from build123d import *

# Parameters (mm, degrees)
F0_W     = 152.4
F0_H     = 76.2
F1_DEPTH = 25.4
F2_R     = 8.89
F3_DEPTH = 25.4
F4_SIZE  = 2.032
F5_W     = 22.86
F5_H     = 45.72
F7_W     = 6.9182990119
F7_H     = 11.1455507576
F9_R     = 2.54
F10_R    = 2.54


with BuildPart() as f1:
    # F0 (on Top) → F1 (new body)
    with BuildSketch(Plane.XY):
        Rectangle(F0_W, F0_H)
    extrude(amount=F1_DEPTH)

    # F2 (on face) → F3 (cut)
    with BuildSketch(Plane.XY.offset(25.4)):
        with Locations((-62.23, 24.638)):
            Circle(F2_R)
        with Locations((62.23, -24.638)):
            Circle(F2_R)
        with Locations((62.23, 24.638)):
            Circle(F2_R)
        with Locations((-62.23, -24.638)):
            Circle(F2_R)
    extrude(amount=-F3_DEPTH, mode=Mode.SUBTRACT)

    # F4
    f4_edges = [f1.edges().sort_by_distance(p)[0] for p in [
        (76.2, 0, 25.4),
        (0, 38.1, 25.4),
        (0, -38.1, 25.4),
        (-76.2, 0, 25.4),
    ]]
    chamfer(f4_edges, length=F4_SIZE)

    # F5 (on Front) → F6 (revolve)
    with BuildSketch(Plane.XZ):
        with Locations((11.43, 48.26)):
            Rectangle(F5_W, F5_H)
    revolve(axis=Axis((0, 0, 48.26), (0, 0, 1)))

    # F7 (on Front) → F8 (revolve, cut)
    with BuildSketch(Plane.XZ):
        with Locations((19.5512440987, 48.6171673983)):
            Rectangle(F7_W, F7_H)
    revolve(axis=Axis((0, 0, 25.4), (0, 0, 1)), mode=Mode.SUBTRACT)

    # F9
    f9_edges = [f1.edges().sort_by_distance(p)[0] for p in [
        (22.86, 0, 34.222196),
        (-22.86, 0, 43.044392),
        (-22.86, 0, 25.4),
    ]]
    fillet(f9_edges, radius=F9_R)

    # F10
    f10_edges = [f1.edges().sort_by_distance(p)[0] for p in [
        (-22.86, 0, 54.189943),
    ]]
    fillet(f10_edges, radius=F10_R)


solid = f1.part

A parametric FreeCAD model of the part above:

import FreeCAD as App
import Part
import Sketcher

V = App.Vector
Q = App.Units.Quantity


def edges_at(feature, points):
    """Names of the edges that pass closest to the given points."""
    edges = feature.Shape.Edges
    near = lambda p: min(range(len(edges)), key=lambda i: edges[i].distToShape(Part.Vertex(*p))[0])
    return sorted({f"Edge{near(p) + 1}" for p in points})


def add_polygon(sketch, points):
    """Adds a closed chain of lines whose ends are joined by coincident constraints."""
    first, n = sketch.GeometryCount, len(points)
    for a, b in zip(points, points[1:] + points[:1]):
        sketch.addGeometry(Part.LineSegment(App.Vector(*a, 0), App.Vector(*b, 0)), False)
    for i in range(n):
        sketch.addConstraint(Sketcher.Constraint("Coincident", first + i, 2, first + (i + 1) % n, 1))

doc = App.newDocument("Part")
params = doc.addObject("Spreadsheet::Sheet", "Params")
for row, (alias, value) in enumerate([
    ("sketch1_width", "6 in"),
    ("sketch1_height", "3 in"),
    ("pad1_length", "1 in"),
    ("sketch2_diameter", "0.7 in"),
    ("pocket1_length", "1 in"),
    ("chamfer_size", "0.08 in"),
    ("sketch3_width", "0.9 in"),
    ("sketch3_height", "1.8 in"),
    ("revolution_angle", "360 deg"),
    ("groove_angle", "360 deg"),
    ("fillet_radius", "0.1 in"),
    ("fillet2_radius", "0.1 in"),
], start=1):
    params.set(f"A{row}", alias)
    params.set(f"B{row}", "=" + value)
    params.setAlias(f"B{row}", alias)

body = doc.addObject("PartDesign::Body", "Body")

# Sketch on XY plane
sketch1 = body.newObject("Sketcher::SketchObject", "Sketch")
sketch1.AttachmentSupport = (doc.getObject("XY_Plane"), [""])
sketch1.MapMode = "FlatFace"
add_polygon(sketch1, [(-76.2, 38.1), (-76.2, -38.1), (76.2, -38.1), (76.2, 38.1)])  # lines 0-3
sketch1.addConstraint([
    Sketcher.Constraint("Vertical", 0),
    Sketcher.Constraint("Horizontal", 1),
    Sketcher.Constraint("Vertical", 2),
    Sketcher.Constraint("Horizontal", 3),
    Sketcher.Constraint("Symmetric", 0, 2, 2, 2, -1, 1),
    Sketcher.Constraint("DistanceX", 1, 1, 1, 2, Q("6 in")),
    Sketcher.Constraint("DistanceY", 0, 2, 0, 1, Q("3 in")),
])
sketch1.setExpression("Constraints[9]", "Params.sketch1_width")
sketch1.setExpression("Constraints[10]", "Params.sketch1_height")
pad1 = body.newObject("PartDesign::Pad", "Pad")
pad1.Profile = sketch1
pad1.setExpression("Length", "Params.pad1_length")

# Sketch on XY plane
sketch2 = body.newObject("Sketcher::SketchObject", "Sketch001")
sketch2.AttachmentSupport = (doc.getObject("XY_Plane"), [""])
sketch2.MapMode = "FlatFace"
sketch2.AttachmentOffset = App.Placement(V(0, 0, 1 * 25.4), App.Rotation())
sketch2.addGeometry([
    Part.Circle(V(-62.23, 24.638, 0), V(0, 0, 1), 8.89),
    Part.Circle(V(62.23, -24.638, 0), V(0, 0, 1), 8.89),
    Part.Circle(V(62.23, 24.638, 0), V(0, 0, 1), 8.89),
    Part.Circle(V(-62.23, -24.638, 0), V(0, 0, 1), 8.89),
], False)
sketch2.addConstraint([
    Sketcher.Constraint("Equal", 0, 1),
    Sketcher.Constraint("Equal", 1, 2),
    Sketcher.Constraint("Equal", 2, 3),
    Sketcher.Constraint("Symmetric", 0, 3, 1, 3, -1, 1),
    Sketcher.Constraint("Symmetric", 2, 3, 3, 3, -1, 1),
    Sketcher.Constraint("Symmetric", 0, 3, 2, 3, -2),
    Sketcher.Constraint("Diameter", 0, Q("0.7 in")),
    Sketcher.Constraint("DistanceX", 0, 3, 1, 3, Q("4.9 in")),
    Sketcher.Constraint("DistanceY", -1, 1, 0, 3, Q("0.97 in")),
])
sketch2.setExpression("Constraints[6]", "Params.sketch2_diameter")
pocket1 = body.newObject("PartDesign::Pocket", "Pocket")
pocket1.Profile = sketch2
pocket1.setExpression("Length", "Params.pocket1_length")
doc.recompute()

chamfer = body.newObject("PartDesign::Chamfer", "Chamfer")
chamfer.Base = (pocket1, edges_at(pocket1, [
    (76.2, 0, 25.4),
    (0, 38.1, 25.4),
    (0, -38.1, 25.4),
    (-76.2, 0, 25.4),
]))
chamfer.setExpression("Size", "Params.chamfer_size")

# Sketch on XZ plane
sketch3 = body.newObject("Sketcher::SketchObject", "Sketch002")
sketch3.AttachmentSupport = (doc.getObject("XZ_Plane"), [""])
sketch3.MapMode = "FlatFace"
add_polygon(sketch3, [(0, 71.12), (0, 25.4), (22.86, 25.4), (22.86, 71.12)])  # lines 0-3
sketch3.addConstraint([
    Sketcher.Constraint("Vertical", 0),
    Sketcher.Constraint("Horizontal", 1),
    Sketcher.Constraint("Vertical", 2),
    Sketcher.Constraint("Horizontal", 3),
    Sketcher.Constraint("PointOnObject", 0, 2, -2),
    Sketcher.Constraint("DistanceX", 1, 1, 1, 2, Q("0.9 in")),
    Sketcher.Constraint("DistanceY", 0, 2, 0, 1, Q("1.8 in")),
    Sketcher.Constraint("DistanceY", -1, 1, 0, 2, Q("1 in")),
])
sketch3.setExpression("Constraints[9]", "Params.sketch3_width")
sketch3.setExpression("Constraints[10]", "Params.sketch3_height")
revolution = body.newObject("PartDesign::Revolution", "Revolution")
revolution.Profile = sketch3
revolution.ReferenceAxis = (sketch3, ["V_Axis"])
revolution.setExpression("Angle", "Params.revolution_angle")

# Sketch on XZ plane
sketch4 = body.newObject("Sketcher::SketchObject", "Sketch003")
sketch4.AttachmentSupport = (doc.getObject("XZ_Plane"), [""])
sketch4.MapMode = "FlatFace"
add_polygon(sketch4, [(16.092095, 54.189943), (16.092095, 43.044392), (23.010394, 43.044392), (23.010394, 54.189943)])  # lines 0-3
sketch4.addConstraint([
    Sketcher.Constraint("Vertical", 0),
    Sketcher.Constraint("Horizontal", 1),
    Sketcher.Constraint("Vertical", 2),
    Sketcher.Constraint("Horizontal", 3),
    Sketcher.Constraint("DistanceX", 1, 1, 1, 2, Q("6.918299 mm")),
    Sketcher.Constraint("DistanceY", 0, 2, 0, 1, Q("11.145551 mm")),
    Sketcher.Constraint("DistanceX", -1, 1, 0, 2, Q("16.092095 mm")),
    Sketcher.Constraint("DistanceY", -1, 1, 0, 2, Q("43.044392 mm")),
])
groove = body.newObject("PartDesign::Groove", "Groove")
groove.Profile = sketch4
groove.ReferenceAxis = (sketch4, ["V_Axis"])
groove.setExpression("Angle", "Params.groove_angle")
doc.recompute()

fillet = body.newObject("PartDesign::Fillet", "Fillet")
fillet.Base = (groove, edges_at(groove, [(22.86, 0, 34.222), (-22.86, 0, 43.044), (-22.86, 0, 25.4)]))
fillet.setExpression("Radius", "Params.fillet_radius")
doc.recompute()

fillet2 = body.newObject("PartDesign::Fillet", "Fillet001")
fillet2.Base = (fillet, edges_at(fillet, [(-22.86, 0, 54.19)]))
fillet2.setExpression("Radius", "Params.fillet2_radius")

doc.recompute()
